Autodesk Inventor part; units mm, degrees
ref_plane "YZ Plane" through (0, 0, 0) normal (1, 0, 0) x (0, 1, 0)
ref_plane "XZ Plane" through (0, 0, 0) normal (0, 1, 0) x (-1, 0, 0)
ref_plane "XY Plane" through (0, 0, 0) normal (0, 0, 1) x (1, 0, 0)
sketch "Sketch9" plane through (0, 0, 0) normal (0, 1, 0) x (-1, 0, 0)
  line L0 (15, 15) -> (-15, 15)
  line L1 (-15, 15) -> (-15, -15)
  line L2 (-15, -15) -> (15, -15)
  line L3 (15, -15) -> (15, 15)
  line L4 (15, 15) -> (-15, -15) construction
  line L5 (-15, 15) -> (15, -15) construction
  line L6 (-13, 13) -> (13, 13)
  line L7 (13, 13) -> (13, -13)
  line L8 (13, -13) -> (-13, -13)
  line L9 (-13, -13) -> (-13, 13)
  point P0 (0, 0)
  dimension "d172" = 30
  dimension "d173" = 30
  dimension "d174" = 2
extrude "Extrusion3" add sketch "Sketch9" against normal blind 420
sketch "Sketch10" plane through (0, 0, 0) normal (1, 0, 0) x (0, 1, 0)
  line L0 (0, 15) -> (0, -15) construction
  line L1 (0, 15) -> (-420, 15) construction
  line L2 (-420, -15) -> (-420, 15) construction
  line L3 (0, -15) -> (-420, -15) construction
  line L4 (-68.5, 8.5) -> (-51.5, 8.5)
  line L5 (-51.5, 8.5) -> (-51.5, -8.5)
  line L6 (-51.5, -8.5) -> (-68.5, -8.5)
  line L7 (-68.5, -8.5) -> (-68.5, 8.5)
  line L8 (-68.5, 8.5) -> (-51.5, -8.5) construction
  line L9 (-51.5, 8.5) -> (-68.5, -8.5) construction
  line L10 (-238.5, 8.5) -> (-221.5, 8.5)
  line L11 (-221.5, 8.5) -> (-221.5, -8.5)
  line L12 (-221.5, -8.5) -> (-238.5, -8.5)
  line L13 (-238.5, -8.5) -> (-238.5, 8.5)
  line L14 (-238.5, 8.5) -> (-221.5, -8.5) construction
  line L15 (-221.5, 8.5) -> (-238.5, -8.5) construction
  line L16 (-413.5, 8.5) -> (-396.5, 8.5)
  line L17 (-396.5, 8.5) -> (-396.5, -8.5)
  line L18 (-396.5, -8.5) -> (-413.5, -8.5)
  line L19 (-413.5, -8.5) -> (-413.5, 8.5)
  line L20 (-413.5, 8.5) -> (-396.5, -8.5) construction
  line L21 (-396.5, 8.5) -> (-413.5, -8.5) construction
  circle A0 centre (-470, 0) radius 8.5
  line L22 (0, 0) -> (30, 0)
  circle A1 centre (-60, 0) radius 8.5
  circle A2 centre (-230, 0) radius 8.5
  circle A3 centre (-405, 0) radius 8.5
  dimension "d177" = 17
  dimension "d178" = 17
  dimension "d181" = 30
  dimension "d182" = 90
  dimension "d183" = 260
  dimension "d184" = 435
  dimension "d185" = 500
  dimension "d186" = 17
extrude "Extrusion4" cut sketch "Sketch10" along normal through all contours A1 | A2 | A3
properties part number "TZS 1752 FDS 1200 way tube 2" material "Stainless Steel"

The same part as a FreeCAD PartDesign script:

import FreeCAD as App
import Part
import Sketcher
from FreeCAD import Vector
Q = App.Units.Quantity

doc = App.newDocument("Part")
body = doc.addObject("PartDesign::Body", "Body")

sketch1 = body.newObject("Sketcher::SketchObject", "Sketch")
sketch1.AttachmentSupport = (doc.getObject("XZ_Plane"), [""])
sketch1.MapMode = "FlatFace"
sketch1.addGeometry([
    Part.LineSegment(Vector(-15, -15, 0), Vector(-15, 15, 0)),
    Part.LineSegment(Vector(-15, 15, 0), Vector(15, 15, 0)),
    Part.LineSegment(Vector(15, 15, 0), Vector(15, -15, 0)),
    Part.LineSegment(Vector(15, -15, 0), Vector(-15, -15, 0)),
    Part.LineSegment(Vector(13, -13, 0), Vector(13, 13, 0)),
    Part.LineSegment(Vector(13, 13, 0), Vector(-13, 13, 0)),
    Part.LineSegment(Vector(-13, 13, 0), Vector(-13, -13, 0)),
    Part.LineSegment(Vector(-13, -13, 0), Vector(13, -13, 0)),
], False)
sketch1.addConstraint([
    Sketcher.Constraint("Coincident", 0, 2, 1, 1),
    Sketcher.Constraint("Coincident", 1, 2, 2, 1),
    Sketcher.Constraint("Coincident", 2, 2, 3, 1),
    Sketcher.Constraint("Coincident", 3, 2, 0, 1),
    Sketcher.Constraint("Coincident", 4, 2, 5, 1),
    Sketcher.Constraint("Coincident", 5, 2, 6, 1),
    Sketcher.Constraint("Coincident", 6, 2, 7, 1),
    Sketcher.Constraint("Coincident", 7, 2, 4, 1),
    Sketcher.Constraint("Vertical", 0),
    Sketcher.Constraint("Horizontal", 1),
    Sketcher.Constraint("Vertical", 2),
    Sketcher.Constraint("Horizontal", 3),
    Sketcher.Constraint("Vertical", 4),
    Sketcher.Constraint("Horizontal", 5),
    Sketcher.Constraint("Vertical", 6),
    Sketcher.Constraint("Horizontal", 7),
    Sketcher.Constraint("Symmetric", 0, 2, 2, 2, -1, 1),
    Sketcher.Constraint("Symmetric", 4, 2, 6, 2, -1, 1),
    Sketcher.Constraint("Equal", 3, 0),
    Sketcher.Constraint("Equal", 7, 4),
    Sketcher.Constraint("DistanceX", 1, 1, 1, 2, Q("30 mm")),
    Sketcher.Constraint("DistanceX", 4, 2, 1, 2, Q("2 mm")),
])
pad1 = body.newObject("PartDesign::Pad", "Pad")
pad1.Profile = sketch1
pad1.Length = 420

sketch2 = body.newObject("Sketcher::SketchObject", "Sketch001")
sketch2.AttachmentSupport = (doc.getObject("YZ_Plane"), [""])
sketch2.MapMode = "FlatFace"
sketch2.addGeometry([
    Part.Circle(Vector(-60, 0, 0), Vector(0, 0, 1), 8),
    Part.Circle(Vector(-230, 0, 0), Vector(0, 0, 1), 8),
    Part.Circle(Vector(-405, 0, 0), Vector(0, 0, 1), 8),
], False)
sketch2.addConstraint([
    Sketcher.Constraint("Equal", 0, 1),
    Sketcher.Constraint("Equal", 1, 2),
    Sketcher.Constraint("PointOnObject", 0, 3, -1),
    Sketcher.Constraint("PointOnObject", 1, 3, -1),
    Sketcher.Constraint("PointOnObject", 2, 3, -1),
    Sketcher.Constraint("Diameter", 0, Q("17 mm")),
    Sketcher.Constraint("DistanceX", 0, 3, -1, 1, Q("60 mm")),
    Sketcher.Constraint("DistanceX", 1, 3, -1, 1, Q("230 mm")),
    Sketcher.Constraint("DistanceX", 2, 3, -1, 1, Q("405 mm")),
])
pocket1 = body.newObject("PartDesign::Pocket", "Pocket")
pocket1.Profile = sketch2
pocket1.Type = "ThroughAll"
pocket1.Reversed = True

doc.recompute()
